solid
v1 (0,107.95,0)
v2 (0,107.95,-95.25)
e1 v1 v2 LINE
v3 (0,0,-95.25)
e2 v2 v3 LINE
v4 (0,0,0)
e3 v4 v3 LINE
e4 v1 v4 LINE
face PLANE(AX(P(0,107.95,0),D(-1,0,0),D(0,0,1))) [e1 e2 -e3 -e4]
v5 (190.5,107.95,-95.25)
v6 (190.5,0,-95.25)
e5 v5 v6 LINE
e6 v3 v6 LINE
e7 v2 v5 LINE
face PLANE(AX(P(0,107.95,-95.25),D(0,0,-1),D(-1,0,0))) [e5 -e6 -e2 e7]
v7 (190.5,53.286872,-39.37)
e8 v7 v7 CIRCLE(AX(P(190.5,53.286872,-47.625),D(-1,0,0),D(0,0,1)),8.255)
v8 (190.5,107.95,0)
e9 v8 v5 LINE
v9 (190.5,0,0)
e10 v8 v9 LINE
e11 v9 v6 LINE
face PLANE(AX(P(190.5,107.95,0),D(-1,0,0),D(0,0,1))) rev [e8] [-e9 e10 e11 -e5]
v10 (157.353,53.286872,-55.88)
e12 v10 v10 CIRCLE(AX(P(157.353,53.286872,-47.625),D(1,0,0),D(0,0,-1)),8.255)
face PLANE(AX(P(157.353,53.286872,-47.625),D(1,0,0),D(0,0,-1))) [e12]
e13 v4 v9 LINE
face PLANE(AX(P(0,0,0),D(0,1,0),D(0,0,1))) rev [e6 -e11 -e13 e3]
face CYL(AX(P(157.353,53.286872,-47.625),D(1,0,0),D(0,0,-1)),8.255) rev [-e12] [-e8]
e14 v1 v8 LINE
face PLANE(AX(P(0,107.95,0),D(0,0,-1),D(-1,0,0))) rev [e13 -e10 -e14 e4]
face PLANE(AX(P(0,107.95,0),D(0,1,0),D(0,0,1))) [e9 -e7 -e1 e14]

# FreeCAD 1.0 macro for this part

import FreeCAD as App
import Part
import Sketcher
from FreeCAD import Vector
Q = App.Units.Quantity

doc = App.newDocument("Part")
body = doc.addObject("PartDesign::Body", "Body")

# Sketch on XZ plane
sketch1 = body.newObject("Sketcher::SketchObject", "Sketch")
sketch1.AttachmentSupport = (doc.getObject("XZ_Plane"), [""])
sketch1.MapMode = "FlatFace"
sketch1.addGeometry(Part.LineSegment(Vector(0, -95, 0), Vector(0, 0, 0)), False)
sketch1.addGeometry(Part.LineSegment(Vector(0, 0, 0), Vector(190, 0, 0)), False)
sketch1.addGeometry(Part.LineSegment(Vector(190, 0, 0), Vector(190, -95, 0)), False)
sketch1.addGeometry(Part.LineSegment(Vector(190, -95, 0), Vector(0, -95, 0)), False)
sketch1.addConstraint(Sketcher.Constraint("Coincident", 0, 2, 1, 1))
sketch1.addConstraint(Sketcher.Constraint("Coincident", 1, 2, 2, 1))
sketch1.addConstraint(Sketcher.Constraint("Coincident", 2, 2, 3, 1))
sketch1.addConstraint(Sketcher.Constraint("Coincident", 3, 2, 0, 1))
sketch1.addConstraint(Sketcher.Constraint("Vertical", 0))
sketch1.addConstraint(Sketcher.Constraint("Horizontal", 1))
sketch1.addConstraint(Sketcher.Constraint("Vertical", 2))
sketch1.addConstraint(Sketcher.Constraint("Horizontal", 3))
sketch1.addConstraint(Sketcher.Constraint("Coincident", 0, 2, -1, 1))
sketch1.addConstraint(Sketcher.Constraint("DistanceX", 1, 1, 1, 2, Q("7.5 in")))
sketch1.addConstraint(Sketcher.Constraint("DistanceY", 0, 1, 0, 2, Q("3.75 in")))
pad1 = body.newObject("PartDesign::Pad", "Pad")
pad1.Profile = sketch1
pad1.Length = Q("4.25 in")
pad1.Reversed = True

# Sketch on YZ plane
sketch2 = body.newObject("Sketcher::SketchObject", "Sketch001")
sketch2.AttachmentSupport = (doc.getObject("YZ_Plane"), [""])
sketch2.MapMode = "FlatFace"
sketch2.AttachmentOffset = App.Placement(Vector(0, 0, 7.5 * 25.4), App.Rotation())
sketch2.addGeometry(Part.Circle(Vector(53, -48, 0), Vector(0, 0, 1), 8), False)
sketch2.addConstraint(Sketcher.Constraint("Diameter", 0, Q("0.65 in")))
sketch2.addConstraint(Sketcher.Constraint("DistanceY", 0, 3, -1, 1, Q("1.875 in")))
sketch2.addConstraint(Sketcher.Constraint("DistanceX", -1, 1, 0, 3, 53.286872))
pocket1 = body.newObject("PartDesign::Pocket", "Pocket")
pocket1.Profile = sketch2
pocket1.Length = Q("2.61 in")
pocket1.Midplane = True

doc.recompute()
